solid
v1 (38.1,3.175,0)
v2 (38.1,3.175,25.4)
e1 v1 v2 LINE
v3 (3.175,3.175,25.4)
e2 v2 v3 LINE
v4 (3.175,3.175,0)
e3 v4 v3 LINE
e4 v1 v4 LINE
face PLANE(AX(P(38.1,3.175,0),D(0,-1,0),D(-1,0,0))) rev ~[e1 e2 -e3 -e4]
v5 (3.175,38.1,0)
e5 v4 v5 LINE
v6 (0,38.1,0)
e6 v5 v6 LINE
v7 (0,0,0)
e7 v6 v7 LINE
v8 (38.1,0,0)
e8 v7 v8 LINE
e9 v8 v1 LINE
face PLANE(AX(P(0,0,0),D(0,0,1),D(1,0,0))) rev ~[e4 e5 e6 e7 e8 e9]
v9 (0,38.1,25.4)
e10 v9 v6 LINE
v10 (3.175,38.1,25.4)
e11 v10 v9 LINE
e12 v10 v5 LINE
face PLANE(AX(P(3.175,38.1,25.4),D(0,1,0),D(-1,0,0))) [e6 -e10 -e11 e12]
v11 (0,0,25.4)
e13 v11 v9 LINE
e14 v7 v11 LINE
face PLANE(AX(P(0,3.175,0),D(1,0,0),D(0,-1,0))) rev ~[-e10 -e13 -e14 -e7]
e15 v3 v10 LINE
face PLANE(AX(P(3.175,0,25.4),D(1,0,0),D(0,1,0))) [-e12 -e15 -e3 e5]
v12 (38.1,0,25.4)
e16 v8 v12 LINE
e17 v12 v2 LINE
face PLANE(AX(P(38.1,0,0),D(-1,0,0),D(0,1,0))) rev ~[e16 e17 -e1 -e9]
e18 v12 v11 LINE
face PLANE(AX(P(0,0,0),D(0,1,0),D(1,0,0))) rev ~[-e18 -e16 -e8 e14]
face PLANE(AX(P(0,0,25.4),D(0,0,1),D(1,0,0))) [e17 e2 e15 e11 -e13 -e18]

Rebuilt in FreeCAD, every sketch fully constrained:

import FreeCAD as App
import Part
import Sketcher
from FreeCAD import Vector
Q = App.Units.Quantity


def add_polygon(sketch, points):
    """Adds a closed chain of lines whose ends are joined by coincident constraints."""
    first, n = sketch.GeometryCount, len(points)
    for a, b in zip(points, points[1:] + points[:1]):
        sketch.addGeometry(Part.LineSegment(App.Vector(*a, 0), App.Vector(*b, 0)), False)
    for i in range(n):
        sketch.addConstraint(Sketcher.Constraint("Coincident", first + i, 2, first + (i + 1) % n, 1))

doc = App.newDocument("Part")
params = doc.addObject("Spreadsheet::Sheet", "Params")
for row, (alias, value) in enumerate([
    ("sketch1_width", "1.5 in"),
    ("sketch1_height", "0.125 in"),
    ("pad1_length", "1 in"),
    ("sketch2_height", "1.5 in"),
    ("sketch2_width", "0.125 in"),
    ("pad2_length", "1 in"),
], start=1):
    params.set(f"A{row}", alias)
    params.set(f"B{row}", "=" + value)
    params.setAlias(f"B{row}", alias)

body = doc.addObject("PartDesign::Body", "Body")

# Sketch on XY plane
sketch1 = body.newObject("Sketcher::SketchObject", "Sketch")
sketch1.AttachmentSupport = (doc.getObject("XY_Plane"), [""])
sketch1.MapMode = "FlatFace"
add_polygon(sketch1, [(0, 3.2), (0, 0), (38.1, 0), (38.1, 3.2)])  # lines 0-3
sketch1.addConstraint([
    Sketcher.Constraint("Vertical", 0),
    Sketcher.Constraint("Horizontal", 1),
    Sketcher.Constraint("Vertical", 2),
    Sketcher.Constraint("Horizontal", 3),
    Sketcher.Constraint("Coincident", 0, 2, -1, 1),
    Sketcher.Constraint("DistanceX", 1, 1, 1, 2, Q("1.5 in")),
    Sketcher.Constraint("DistanceY", 0, 2, 0, 1, Q("0.125 in")),
])
sketch1.setExpression("Constraints[9]", "Params.sketch1_width")
sketch1.setExpression("Constraints[10]", "Params.sketch1_height")
pad1 = body.newObject("PartDesign::Pad", "Pad")
pad1.Profile = sketch1
pad1.setExpression("Length", "Params.pad1_length")

# Sketch on XY plane
sketch2 = body.newObject("Sketcher::SketchObject", "Sketch001")
sketch2.AttachmentSupport = (doc.getObject("XY_Plane"), [""])
sketch2.MapMode = "FlatFace"
sketch2.AttachmentOffset = App.Placement(Vector(0, 0, 1 * 25.4), App.Rotation())
add_polygon(sketch2, [(0, 38.1), (0, 0), (3.2, 0), (3.2, 38.1)])  # lines 0-3
sketch2.addConstraint([
    Sketcher.Constraint("Vertical", 0),
    Sketcher.Constraint("Horizontal", 1),
    Sketcher.Constraint("Vertical", 2),
    Sketcher.Constraint("Horizontal", 3),
    Sketcher.Constraint("Coincident", 0, 2, -1, 1),
    Sketcher.Constraint("DistanceY", 0, 2, 0, 1, Q("1.5 in")),
    Sketcher.Constraint("DistanceX", 1, 1, 1, 2, Q("0.125 in")),
])
sketch2.setExpression("Constraints[9]", "Params.sketch2_height")
sketch2.setExpression("Constraints[10]", "Params.sketch2_width")
pad2 = body.newObject("PartDesign::Pad", "Pad001")
pad2.Profile = sketch2
pad2.setExpression("Length", "Params.pad2_length")
pad2.Reversed = True

doc.recompute()
